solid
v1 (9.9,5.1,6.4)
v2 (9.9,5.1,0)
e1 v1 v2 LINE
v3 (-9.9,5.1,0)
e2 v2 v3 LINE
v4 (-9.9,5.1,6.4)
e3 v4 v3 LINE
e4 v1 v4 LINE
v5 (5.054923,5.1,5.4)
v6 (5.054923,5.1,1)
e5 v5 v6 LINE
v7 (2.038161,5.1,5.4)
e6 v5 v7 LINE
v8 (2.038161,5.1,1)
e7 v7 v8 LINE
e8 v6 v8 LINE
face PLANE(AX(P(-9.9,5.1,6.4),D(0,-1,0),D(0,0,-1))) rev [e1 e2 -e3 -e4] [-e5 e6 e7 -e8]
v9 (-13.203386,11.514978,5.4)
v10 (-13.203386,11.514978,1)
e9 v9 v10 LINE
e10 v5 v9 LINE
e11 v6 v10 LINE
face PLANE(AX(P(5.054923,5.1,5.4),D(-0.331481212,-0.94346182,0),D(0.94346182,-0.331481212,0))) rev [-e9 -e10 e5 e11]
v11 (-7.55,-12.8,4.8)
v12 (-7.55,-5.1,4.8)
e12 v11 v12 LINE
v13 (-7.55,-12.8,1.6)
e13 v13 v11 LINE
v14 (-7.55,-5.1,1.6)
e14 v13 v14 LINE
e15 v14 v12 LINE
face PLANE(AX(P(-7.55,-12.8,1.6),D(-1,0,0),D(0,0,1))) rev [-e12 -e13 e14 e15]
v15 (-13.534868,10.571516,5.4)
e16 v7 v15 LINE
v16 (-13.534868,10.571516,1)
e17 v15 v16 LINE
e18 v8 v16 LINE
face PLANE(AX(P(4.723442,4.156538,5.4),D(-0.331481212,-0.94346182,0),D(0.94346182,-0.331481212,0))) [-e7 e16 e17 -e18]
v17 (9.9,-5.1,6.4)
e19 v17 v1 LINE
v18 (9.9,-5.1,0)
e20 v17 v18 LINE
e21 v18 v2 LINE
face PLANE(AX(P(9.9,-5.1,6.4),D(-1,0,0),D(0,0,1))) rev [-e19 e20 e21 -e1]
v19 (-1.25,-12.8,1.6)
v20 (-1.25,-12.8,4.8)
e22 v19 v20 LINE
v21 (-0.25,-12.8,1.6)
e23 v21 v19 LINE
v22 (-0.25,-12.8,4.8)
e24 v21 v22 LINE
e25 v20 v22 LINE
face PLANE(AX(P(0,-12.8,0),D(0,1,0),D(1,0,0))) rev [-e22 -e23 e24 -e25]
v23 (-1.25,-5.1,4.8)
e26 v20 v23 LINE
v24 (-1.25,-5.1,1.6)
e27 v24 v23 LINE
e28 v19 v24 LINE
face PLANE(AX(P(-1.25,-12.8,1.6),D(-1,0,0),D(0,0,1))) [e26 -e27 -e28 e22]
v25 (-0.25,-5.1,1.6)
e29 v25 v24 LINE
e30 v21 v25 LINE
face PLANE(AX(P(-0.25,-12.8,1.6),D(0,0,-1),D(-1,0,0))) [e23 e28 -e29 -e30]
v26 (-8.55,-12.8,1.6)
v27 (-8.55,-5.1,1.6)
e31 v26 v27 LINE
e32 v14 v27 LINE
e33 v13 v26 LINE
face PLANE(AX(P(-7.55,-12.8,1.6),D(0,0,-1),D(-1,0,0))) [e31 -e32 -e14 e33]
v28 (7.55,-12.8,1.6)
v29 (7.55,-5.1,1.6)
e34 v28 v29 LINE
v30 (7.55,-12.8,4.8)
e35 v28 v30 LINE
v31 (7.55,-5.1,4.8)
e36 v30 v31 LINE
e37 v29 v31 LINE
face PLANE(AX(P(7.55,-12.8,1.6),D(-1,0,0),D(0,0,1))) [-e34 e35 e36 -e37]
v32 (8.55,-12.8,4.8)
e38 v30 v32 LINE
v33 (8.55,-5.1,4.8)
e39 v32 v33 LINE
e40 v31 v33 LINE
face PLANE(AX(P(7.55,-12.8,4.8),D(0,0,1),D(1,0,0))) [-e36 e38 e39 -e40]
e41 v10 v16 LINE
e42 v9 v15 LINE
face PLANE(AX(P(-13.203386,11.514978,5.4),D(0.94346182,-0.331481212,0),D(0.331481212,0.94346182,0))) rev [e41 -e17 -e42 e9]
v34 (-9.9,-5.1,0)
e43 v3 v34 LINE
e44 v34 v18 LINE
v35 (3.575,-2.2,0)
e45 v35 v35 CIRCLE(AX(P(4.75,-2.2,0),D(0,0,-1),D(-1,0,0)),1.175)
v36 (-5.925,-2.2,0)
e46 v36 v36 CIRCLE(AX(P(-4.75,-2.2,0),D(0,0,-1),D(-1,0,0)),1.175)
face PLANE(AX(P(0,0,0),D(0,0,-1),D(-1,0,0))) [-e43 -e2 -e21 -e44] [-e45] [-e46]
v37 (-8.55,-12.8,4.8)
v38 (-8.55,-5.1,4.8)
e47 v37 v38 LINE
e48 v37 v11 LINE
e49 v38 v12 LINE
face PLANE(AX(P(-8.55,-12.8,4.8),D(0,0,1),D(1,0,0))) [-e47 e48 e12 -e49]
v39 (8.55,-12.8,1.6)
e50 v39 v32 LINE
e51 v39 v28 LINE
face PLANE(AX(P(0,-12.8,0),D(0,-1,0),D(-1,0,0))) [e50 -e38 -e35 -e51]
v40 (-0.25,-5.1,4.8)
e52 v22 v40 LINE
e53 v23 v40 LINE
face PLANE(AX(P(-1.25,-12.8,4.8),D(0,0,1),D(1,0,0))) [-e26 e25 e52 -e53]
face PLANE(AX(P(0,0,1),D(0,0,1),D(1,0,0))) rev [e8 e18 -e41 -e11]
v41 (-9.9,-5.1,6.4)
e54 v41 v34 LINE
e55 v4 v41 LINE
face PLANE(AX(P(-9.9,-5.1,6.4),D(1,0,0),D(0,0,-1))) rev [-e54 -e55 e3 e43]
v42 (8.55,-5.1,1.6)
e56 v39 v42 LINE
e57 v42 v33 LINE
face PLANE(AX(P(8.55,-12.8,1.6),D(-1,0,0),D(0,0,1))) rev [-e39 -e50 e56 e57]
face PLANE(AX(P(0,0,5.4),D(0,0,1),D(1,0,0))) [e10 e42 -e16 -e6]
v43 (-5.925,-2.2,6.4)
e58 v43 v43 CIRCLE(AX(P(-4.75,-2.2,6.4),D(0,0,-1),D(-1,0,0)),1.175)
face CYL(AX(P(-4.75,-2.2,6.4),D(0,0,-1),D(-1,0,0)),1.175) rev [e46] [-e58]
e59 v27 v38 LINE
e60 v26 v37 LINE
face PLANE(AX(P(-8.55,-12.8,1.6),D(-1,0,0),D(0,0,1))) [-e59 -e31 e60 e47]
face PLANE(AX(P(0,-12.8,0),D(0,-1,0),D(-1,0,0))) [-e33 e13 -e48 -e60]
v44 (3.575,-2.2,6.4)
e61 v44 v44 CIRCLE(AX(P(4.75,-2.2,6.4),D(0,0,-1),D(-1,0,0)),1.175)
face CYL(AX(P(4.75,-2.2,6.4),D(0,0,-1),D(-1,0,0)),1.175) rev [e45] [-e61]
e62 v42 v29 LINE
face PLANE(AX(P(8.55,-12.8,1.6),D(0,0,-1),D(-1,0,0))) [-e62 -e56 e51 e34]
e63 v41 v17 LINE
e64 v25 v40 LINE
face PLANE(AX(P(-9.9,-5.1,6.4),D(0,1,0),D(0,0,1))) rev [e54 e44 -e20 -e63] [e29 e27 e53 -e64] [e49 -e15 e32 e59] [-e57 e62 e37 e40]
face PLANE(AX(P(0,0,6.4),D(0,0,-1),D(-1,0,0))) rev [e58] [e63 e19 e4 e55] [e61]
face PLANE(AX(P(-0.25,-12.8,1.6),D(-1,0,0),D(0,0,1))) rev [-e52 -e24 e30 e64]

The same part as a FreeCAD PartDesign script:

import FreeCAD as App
import Part
import Sketcher
from FreeCAD import Vector
Q = App.Units.Quantity


def add_polygon(sketch, points):
    """Adds a closed chain of lines whose ends are joined by coincident constraints."""
    first, n = sketch.GeometryCount, len(points)
    for a, b in zip(points, points[1:] + points[:1]):
        sketch.addGeometry(Part.LineSegment(App.Vector(*a, 0), App.Vector(*b, 0)), False)
    for i in range(n):
        sketch.addConstraint(Sketcher.Constraint("Coincident", first + i, 2, first + (i + 1) % n, 1))

doc = App.newDocument("Part")
body = doc.addObject("PartDesign::Body", "Body")

# Sketch on XY plane
sketch1 = body.newObject("Sketcher::SketchObject", "Sketch")
sketch1.AttachmentSupport = (doc.getObject("XY_Plane"), [""])
sketch1.MapMode = "FlatFace"
add_polygon(sketch1, [(-10, 5), (-10, -5), (10, -5), (10, 5)])  # lines 0-3
sketch1.addConstraint(Sketcher.Constraint("Vertical", 0))
sketch1.addConstraint(Sketcher.Constraint("Horizontal", 1))
sketch1.addConstraint(Sketcher.Constraint("Vertical", 2))
sketch1.addConstraint(Sketcher.Constraint("Horizontal", 3))
sketch1.addConstraint(Sketcher.Constraint("Symmetric", 0, 2, 2, 2, -1, 1))
sketch1.addConstraint(Sketcher.Constraint("DistanceX", 1, 1, 1, 2, Q("19.8 mm")))
sketch1.addConstraint(Sketcher.Constraint("DistanceY", 0, 2, 0, 1, Q("10.2 mm")))
pad1 = body.newObject("PartDesign::Pad", "Pad")
pad1.Profile = sketch1
pad1.Length = 6.4

# Sketch on XY plane
sketch2 = body.newObject("Sketcher::SketchObject", "Sketch001")
sketch2.AttachmentSupport = (doc.getObject("XY_Plane"), [""])
sketch2.MapMode = "FlatFace"
sketch2.addGeometry(Part.Circle(Vector(4.8, -2.2, 0), Vector(0, 0, 1), 1.2), False)
sketch2.addGeometry(Part.Circle(Vector(-4.8, -2.2, 0), Vector(0, 0, 1), 1.2), False)
sketch2.addConstraint(Sketcher.Constraint("Equal", 0, 1))
sketch2.addConstraint(Sketcher.Constraint("Symmetric", 0, 3, 1, 3, -2))
sketch2.addConstraint(Sketcher.Constraint("Diameter", 0, Q("2.35 mm")))
sketch2.addConstraint(Sketcher.Constraint("DistanceY", 0, 3, -1, 1, Q("2.2 mm")))
sketch2.addConstraint(Sketcher.Constraint("DistanceX", 1, 3, 0, 3, Q("9.5 mm")))
pocket1 = body.newObject("PartDesign::Pocket", "Pocket")
pocket1.Profile = sketch2
pocket1.Type = "ThroughAll"
pocket1.Reversed = True

# Sketch on XZ plane
sketch3 = body.newObject("Sketcher::SketchObject", "Sketch002")
sketch3.AttachmentSupport = (doc.getObject("XZ_Plane"), [""])
sketch3.MapMode = "FlatFace"
sketch3.AttachmentOffset = App.Placement(Vector(0, 0, 5.1), App.Rotation())
add_polygon(sketch3, [(8.6, 1.6), (8.6, 4.8), (7.5, 4.8), (7.5, 1.6)])  # lines 0-3
add_polygon(sketch3, [(-0.2, 1.6), (-0.2, 4.8), (-1.2, 4.8), (-1.2, 1.6)])  # lines 4-7
add_polygon(sketch3, [(-7.5, 1.6), (-7.5, 4.8), (-8.6, 4.8), (-8.6, 1.6)])  # lines 8-11
sketch3.addConstraint(Sketcher.Constraint("Vertical", 0))
sketch3.addConstraint(Sketcher.Constraint("Horizontal", 1))
sketch3.addConstraint(Sketcher.Constraint("Vertical", 2))
sketch3.addConstraint(Sketcher.Constraint("Horizontal", 3))
sketch3.addConstraint(Sketcher.Constraint("Vertical", 4))
sketch3.addConstraint(Sketcher.Constraint("Horizontal", 5))
sketch3.addConstraint(Sketcher.Constraint("Vertical", 6))
sketch3.addConstraint(Sketcher.Constraint("Horizontal", 7))
sketch3.addConstraint(Sketcher.Constraint("Vertical", 8))
sketch3.addConstraint(Sketcher.Constraint("Horizontal", 9))
sketch3.addConstraint(Sketcher.Constraint("Vertical", 10))
sketch3.addConstraint(Sketcher.Constraint("Horizontal", 11))
sketch3.addConstraint(Sketcher.Constraint("Symmetric", 1, 2, 8, 2, -2))
sketch3.addConstraint(Sketcher.Constraint("Symmetric", 3, 2, 10, 2, -2))
sketch3.addConstraint(Sketcher.Constraint("Horizontal", 1, 2, 4, 2))
sketch3.addConstraint(Sketcher.Constraint("Horizontal", 3, 2, 6, 2))
sketch3.addConstraint(Sketcher.Constraint("Equal", 3, 5))
sketch3.addConstraint(Sketcher.Constraint("DistanceX", 1, 2, 1, 1, Q("1 mm")))
sketch3.addConstraint(Sketcher.Constraint("DistanceY", 0, 1, 0, 2, Q("3.2 mm")))
sketch3.addConstraint(Sketcher.Constraint("DistanceY", -1, 1, 0, 2, Q("4.8 mm")))
sketch3.addConstraint(Sketcher.Constraint("DistanceX", 4, 2, 1, 2, Q("7.8 mm")))
sketch3.addConstraint(Sketcher.Constraint("DistanceX", 8, 2, 5, 2, Q("6.3 mm")))
pad2 = body.newObject("PartDesign::Pad", "Pad001")
pad2.Profile = sketch3
pad2.Length = 7.7

# Sketch on XY plane
sketch4 = body.newObject("Sketcher::SketchObject", "Sketch003")
sketch4.AttachmentSupport = (doc.getObject("XY_Plane"), [""])
sketch4.MapMode = "FlatFace"
sketch4.AttachmentOffset = App.Placement(Vector(0, 0, 1), App.Rotation())
add_polygon(sketch4, [(-13.2, 11.5), (5.1, 5.1), (4.7, 4.2), (-13.5, 10.6)])  # lines 0-3
sketch4.addConstraint(Sketcher.Constraint("Perpendicular", 0, 1))
sketch4.addConstraint(Sketcher.Constraint("Perpendicular", 1, 2))
sketch4.addConstraint(Sketcher.Constraint("Perpendicular", 2, 3))
sketch4.addConstraint(Sketcher.Constraint("Distance", 1, Q("1 mm")))
sketch4.addConstraint(Sketcher.Constraint("DistanceY", -1, 1, 0, 2, Q("5.1 mm")))
sketch4.addConstraint(Sketcher.Constraint("DistanceY", -1, 1, 1, 2, Q("4.156538 mm")))
sketch4.addConstraint(Sketcher.Constraint("DistanceX", 2, 2, 1, 2, Q("18.25831 mm")))
sketch4.addConstraint(Sketcher.Constraint("DistanceX", -1, 1, 0, 2, Q("5.054923 mm")))
pad3 = body.newObject("PartDesign::Pad", "Pad002")
pad3.Profile = sketch4
pad3.Length = 4.4

doc.recompute()
